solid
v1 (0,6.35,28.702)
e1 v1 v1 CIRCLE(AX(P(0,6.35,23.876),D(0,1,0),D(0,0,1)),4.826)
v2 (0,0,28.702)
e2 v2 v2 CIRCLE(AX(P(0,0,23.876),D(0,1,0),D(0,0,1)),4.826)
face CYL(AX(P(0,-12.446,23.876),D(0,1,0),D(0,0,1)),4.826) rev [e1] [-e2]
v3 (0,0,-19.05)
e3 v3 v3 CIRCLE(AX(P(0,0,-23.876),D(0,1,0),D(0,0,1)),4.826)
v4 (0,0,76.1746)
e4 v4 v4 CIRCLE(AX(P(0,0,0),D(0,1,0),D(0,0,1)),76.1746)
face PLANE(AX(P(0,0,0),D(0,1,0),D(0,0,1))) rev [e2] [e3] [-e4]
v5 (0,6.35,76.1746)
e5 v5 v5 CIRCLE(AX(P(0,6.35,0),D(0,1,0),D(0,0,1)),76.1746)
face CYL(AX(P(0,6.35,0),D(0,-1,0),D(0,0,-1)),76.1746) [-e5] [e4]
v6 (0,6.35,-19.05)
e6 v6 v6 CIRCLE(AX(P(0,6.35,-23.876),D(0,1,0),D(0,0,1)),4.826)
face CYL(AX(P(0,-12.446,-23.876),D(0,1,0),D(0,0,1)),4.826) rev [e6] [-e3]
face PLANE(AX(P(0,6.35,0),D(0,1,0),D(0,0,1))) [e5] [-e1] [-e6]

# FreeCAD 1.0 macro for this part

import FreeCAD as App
import Part
import Sketcher

V = App.Vector
Q = App.Units.Quantity

doc = App.newDocument("Part")
body = doc.addObject("PartDesign::Body", "Body")

# Sketch on XZ plane
sketch1 = body.newObject("Sketcher::SketchObject", "Sketch")
sketch1.AttachmentSupport = (doc.getObject("XZ_Plane"), [""])
sketch1.MapMode = "FlatFace"
sketch1.addGeometry(Part.Circle(V(0, 0, 0), V(0, 0, 1), 76), False)
sketch1.addConstraint([
    Sketcher.Constraint("Coincident", 0, 3, -1, 1),
    Sketcher.Constraint("Diameter", 0, Q("5.998 in")),
])
pad1 = body.newObject("PartDesign::Pad", "Pad")
pad1.Profile = sketch1
pad1.Length = Q("0.25 in")
pad1.Reversed = True

# Sketch on XZ plane
sketch2 = body.newObject("Sketcher::SketchObject", "Sketch001")
sketch2.AttachmentSupport = (doc.getObject("XZ_Plane"), [""])
sketch2.MapMode = "FlatFace"
sketch2.AttachmentOffset = App.Placement(V(0, 0, -0.25 * 25.4), App.Rotation())
sketch2.addGeometry([
    Part.Circle(V(0, -23.9, 0), V(0, 0, 1), 4.8),
    Part.Circle(V(0, 23.9, 0), V(0, 0, 1), 4.8),
], False)
sketch2.addConstraint([
    Sketcher.Constraint("Equal", 0, 1),
    Sketcher.Constraint("Symmetric", 0, 3, 1, 3, -1, 1),
    Sketcher.Constraint("PointOnObject", 0, 3, -2),
    Sketcher.Constraint("Diameter", 0, Q("0.38 in")),
    Sketcher.Constraint("DistanceY", 0, 3, -1, 1, Q("0.94 in")),
])
pocket1 = body.newObject("PartDesign::Pocket", "Pocket")
pocket1.Profile = sketch2
pocket1.Length = Q("0.74 in")
pocket1.Reversed = True

doc.recompute()
